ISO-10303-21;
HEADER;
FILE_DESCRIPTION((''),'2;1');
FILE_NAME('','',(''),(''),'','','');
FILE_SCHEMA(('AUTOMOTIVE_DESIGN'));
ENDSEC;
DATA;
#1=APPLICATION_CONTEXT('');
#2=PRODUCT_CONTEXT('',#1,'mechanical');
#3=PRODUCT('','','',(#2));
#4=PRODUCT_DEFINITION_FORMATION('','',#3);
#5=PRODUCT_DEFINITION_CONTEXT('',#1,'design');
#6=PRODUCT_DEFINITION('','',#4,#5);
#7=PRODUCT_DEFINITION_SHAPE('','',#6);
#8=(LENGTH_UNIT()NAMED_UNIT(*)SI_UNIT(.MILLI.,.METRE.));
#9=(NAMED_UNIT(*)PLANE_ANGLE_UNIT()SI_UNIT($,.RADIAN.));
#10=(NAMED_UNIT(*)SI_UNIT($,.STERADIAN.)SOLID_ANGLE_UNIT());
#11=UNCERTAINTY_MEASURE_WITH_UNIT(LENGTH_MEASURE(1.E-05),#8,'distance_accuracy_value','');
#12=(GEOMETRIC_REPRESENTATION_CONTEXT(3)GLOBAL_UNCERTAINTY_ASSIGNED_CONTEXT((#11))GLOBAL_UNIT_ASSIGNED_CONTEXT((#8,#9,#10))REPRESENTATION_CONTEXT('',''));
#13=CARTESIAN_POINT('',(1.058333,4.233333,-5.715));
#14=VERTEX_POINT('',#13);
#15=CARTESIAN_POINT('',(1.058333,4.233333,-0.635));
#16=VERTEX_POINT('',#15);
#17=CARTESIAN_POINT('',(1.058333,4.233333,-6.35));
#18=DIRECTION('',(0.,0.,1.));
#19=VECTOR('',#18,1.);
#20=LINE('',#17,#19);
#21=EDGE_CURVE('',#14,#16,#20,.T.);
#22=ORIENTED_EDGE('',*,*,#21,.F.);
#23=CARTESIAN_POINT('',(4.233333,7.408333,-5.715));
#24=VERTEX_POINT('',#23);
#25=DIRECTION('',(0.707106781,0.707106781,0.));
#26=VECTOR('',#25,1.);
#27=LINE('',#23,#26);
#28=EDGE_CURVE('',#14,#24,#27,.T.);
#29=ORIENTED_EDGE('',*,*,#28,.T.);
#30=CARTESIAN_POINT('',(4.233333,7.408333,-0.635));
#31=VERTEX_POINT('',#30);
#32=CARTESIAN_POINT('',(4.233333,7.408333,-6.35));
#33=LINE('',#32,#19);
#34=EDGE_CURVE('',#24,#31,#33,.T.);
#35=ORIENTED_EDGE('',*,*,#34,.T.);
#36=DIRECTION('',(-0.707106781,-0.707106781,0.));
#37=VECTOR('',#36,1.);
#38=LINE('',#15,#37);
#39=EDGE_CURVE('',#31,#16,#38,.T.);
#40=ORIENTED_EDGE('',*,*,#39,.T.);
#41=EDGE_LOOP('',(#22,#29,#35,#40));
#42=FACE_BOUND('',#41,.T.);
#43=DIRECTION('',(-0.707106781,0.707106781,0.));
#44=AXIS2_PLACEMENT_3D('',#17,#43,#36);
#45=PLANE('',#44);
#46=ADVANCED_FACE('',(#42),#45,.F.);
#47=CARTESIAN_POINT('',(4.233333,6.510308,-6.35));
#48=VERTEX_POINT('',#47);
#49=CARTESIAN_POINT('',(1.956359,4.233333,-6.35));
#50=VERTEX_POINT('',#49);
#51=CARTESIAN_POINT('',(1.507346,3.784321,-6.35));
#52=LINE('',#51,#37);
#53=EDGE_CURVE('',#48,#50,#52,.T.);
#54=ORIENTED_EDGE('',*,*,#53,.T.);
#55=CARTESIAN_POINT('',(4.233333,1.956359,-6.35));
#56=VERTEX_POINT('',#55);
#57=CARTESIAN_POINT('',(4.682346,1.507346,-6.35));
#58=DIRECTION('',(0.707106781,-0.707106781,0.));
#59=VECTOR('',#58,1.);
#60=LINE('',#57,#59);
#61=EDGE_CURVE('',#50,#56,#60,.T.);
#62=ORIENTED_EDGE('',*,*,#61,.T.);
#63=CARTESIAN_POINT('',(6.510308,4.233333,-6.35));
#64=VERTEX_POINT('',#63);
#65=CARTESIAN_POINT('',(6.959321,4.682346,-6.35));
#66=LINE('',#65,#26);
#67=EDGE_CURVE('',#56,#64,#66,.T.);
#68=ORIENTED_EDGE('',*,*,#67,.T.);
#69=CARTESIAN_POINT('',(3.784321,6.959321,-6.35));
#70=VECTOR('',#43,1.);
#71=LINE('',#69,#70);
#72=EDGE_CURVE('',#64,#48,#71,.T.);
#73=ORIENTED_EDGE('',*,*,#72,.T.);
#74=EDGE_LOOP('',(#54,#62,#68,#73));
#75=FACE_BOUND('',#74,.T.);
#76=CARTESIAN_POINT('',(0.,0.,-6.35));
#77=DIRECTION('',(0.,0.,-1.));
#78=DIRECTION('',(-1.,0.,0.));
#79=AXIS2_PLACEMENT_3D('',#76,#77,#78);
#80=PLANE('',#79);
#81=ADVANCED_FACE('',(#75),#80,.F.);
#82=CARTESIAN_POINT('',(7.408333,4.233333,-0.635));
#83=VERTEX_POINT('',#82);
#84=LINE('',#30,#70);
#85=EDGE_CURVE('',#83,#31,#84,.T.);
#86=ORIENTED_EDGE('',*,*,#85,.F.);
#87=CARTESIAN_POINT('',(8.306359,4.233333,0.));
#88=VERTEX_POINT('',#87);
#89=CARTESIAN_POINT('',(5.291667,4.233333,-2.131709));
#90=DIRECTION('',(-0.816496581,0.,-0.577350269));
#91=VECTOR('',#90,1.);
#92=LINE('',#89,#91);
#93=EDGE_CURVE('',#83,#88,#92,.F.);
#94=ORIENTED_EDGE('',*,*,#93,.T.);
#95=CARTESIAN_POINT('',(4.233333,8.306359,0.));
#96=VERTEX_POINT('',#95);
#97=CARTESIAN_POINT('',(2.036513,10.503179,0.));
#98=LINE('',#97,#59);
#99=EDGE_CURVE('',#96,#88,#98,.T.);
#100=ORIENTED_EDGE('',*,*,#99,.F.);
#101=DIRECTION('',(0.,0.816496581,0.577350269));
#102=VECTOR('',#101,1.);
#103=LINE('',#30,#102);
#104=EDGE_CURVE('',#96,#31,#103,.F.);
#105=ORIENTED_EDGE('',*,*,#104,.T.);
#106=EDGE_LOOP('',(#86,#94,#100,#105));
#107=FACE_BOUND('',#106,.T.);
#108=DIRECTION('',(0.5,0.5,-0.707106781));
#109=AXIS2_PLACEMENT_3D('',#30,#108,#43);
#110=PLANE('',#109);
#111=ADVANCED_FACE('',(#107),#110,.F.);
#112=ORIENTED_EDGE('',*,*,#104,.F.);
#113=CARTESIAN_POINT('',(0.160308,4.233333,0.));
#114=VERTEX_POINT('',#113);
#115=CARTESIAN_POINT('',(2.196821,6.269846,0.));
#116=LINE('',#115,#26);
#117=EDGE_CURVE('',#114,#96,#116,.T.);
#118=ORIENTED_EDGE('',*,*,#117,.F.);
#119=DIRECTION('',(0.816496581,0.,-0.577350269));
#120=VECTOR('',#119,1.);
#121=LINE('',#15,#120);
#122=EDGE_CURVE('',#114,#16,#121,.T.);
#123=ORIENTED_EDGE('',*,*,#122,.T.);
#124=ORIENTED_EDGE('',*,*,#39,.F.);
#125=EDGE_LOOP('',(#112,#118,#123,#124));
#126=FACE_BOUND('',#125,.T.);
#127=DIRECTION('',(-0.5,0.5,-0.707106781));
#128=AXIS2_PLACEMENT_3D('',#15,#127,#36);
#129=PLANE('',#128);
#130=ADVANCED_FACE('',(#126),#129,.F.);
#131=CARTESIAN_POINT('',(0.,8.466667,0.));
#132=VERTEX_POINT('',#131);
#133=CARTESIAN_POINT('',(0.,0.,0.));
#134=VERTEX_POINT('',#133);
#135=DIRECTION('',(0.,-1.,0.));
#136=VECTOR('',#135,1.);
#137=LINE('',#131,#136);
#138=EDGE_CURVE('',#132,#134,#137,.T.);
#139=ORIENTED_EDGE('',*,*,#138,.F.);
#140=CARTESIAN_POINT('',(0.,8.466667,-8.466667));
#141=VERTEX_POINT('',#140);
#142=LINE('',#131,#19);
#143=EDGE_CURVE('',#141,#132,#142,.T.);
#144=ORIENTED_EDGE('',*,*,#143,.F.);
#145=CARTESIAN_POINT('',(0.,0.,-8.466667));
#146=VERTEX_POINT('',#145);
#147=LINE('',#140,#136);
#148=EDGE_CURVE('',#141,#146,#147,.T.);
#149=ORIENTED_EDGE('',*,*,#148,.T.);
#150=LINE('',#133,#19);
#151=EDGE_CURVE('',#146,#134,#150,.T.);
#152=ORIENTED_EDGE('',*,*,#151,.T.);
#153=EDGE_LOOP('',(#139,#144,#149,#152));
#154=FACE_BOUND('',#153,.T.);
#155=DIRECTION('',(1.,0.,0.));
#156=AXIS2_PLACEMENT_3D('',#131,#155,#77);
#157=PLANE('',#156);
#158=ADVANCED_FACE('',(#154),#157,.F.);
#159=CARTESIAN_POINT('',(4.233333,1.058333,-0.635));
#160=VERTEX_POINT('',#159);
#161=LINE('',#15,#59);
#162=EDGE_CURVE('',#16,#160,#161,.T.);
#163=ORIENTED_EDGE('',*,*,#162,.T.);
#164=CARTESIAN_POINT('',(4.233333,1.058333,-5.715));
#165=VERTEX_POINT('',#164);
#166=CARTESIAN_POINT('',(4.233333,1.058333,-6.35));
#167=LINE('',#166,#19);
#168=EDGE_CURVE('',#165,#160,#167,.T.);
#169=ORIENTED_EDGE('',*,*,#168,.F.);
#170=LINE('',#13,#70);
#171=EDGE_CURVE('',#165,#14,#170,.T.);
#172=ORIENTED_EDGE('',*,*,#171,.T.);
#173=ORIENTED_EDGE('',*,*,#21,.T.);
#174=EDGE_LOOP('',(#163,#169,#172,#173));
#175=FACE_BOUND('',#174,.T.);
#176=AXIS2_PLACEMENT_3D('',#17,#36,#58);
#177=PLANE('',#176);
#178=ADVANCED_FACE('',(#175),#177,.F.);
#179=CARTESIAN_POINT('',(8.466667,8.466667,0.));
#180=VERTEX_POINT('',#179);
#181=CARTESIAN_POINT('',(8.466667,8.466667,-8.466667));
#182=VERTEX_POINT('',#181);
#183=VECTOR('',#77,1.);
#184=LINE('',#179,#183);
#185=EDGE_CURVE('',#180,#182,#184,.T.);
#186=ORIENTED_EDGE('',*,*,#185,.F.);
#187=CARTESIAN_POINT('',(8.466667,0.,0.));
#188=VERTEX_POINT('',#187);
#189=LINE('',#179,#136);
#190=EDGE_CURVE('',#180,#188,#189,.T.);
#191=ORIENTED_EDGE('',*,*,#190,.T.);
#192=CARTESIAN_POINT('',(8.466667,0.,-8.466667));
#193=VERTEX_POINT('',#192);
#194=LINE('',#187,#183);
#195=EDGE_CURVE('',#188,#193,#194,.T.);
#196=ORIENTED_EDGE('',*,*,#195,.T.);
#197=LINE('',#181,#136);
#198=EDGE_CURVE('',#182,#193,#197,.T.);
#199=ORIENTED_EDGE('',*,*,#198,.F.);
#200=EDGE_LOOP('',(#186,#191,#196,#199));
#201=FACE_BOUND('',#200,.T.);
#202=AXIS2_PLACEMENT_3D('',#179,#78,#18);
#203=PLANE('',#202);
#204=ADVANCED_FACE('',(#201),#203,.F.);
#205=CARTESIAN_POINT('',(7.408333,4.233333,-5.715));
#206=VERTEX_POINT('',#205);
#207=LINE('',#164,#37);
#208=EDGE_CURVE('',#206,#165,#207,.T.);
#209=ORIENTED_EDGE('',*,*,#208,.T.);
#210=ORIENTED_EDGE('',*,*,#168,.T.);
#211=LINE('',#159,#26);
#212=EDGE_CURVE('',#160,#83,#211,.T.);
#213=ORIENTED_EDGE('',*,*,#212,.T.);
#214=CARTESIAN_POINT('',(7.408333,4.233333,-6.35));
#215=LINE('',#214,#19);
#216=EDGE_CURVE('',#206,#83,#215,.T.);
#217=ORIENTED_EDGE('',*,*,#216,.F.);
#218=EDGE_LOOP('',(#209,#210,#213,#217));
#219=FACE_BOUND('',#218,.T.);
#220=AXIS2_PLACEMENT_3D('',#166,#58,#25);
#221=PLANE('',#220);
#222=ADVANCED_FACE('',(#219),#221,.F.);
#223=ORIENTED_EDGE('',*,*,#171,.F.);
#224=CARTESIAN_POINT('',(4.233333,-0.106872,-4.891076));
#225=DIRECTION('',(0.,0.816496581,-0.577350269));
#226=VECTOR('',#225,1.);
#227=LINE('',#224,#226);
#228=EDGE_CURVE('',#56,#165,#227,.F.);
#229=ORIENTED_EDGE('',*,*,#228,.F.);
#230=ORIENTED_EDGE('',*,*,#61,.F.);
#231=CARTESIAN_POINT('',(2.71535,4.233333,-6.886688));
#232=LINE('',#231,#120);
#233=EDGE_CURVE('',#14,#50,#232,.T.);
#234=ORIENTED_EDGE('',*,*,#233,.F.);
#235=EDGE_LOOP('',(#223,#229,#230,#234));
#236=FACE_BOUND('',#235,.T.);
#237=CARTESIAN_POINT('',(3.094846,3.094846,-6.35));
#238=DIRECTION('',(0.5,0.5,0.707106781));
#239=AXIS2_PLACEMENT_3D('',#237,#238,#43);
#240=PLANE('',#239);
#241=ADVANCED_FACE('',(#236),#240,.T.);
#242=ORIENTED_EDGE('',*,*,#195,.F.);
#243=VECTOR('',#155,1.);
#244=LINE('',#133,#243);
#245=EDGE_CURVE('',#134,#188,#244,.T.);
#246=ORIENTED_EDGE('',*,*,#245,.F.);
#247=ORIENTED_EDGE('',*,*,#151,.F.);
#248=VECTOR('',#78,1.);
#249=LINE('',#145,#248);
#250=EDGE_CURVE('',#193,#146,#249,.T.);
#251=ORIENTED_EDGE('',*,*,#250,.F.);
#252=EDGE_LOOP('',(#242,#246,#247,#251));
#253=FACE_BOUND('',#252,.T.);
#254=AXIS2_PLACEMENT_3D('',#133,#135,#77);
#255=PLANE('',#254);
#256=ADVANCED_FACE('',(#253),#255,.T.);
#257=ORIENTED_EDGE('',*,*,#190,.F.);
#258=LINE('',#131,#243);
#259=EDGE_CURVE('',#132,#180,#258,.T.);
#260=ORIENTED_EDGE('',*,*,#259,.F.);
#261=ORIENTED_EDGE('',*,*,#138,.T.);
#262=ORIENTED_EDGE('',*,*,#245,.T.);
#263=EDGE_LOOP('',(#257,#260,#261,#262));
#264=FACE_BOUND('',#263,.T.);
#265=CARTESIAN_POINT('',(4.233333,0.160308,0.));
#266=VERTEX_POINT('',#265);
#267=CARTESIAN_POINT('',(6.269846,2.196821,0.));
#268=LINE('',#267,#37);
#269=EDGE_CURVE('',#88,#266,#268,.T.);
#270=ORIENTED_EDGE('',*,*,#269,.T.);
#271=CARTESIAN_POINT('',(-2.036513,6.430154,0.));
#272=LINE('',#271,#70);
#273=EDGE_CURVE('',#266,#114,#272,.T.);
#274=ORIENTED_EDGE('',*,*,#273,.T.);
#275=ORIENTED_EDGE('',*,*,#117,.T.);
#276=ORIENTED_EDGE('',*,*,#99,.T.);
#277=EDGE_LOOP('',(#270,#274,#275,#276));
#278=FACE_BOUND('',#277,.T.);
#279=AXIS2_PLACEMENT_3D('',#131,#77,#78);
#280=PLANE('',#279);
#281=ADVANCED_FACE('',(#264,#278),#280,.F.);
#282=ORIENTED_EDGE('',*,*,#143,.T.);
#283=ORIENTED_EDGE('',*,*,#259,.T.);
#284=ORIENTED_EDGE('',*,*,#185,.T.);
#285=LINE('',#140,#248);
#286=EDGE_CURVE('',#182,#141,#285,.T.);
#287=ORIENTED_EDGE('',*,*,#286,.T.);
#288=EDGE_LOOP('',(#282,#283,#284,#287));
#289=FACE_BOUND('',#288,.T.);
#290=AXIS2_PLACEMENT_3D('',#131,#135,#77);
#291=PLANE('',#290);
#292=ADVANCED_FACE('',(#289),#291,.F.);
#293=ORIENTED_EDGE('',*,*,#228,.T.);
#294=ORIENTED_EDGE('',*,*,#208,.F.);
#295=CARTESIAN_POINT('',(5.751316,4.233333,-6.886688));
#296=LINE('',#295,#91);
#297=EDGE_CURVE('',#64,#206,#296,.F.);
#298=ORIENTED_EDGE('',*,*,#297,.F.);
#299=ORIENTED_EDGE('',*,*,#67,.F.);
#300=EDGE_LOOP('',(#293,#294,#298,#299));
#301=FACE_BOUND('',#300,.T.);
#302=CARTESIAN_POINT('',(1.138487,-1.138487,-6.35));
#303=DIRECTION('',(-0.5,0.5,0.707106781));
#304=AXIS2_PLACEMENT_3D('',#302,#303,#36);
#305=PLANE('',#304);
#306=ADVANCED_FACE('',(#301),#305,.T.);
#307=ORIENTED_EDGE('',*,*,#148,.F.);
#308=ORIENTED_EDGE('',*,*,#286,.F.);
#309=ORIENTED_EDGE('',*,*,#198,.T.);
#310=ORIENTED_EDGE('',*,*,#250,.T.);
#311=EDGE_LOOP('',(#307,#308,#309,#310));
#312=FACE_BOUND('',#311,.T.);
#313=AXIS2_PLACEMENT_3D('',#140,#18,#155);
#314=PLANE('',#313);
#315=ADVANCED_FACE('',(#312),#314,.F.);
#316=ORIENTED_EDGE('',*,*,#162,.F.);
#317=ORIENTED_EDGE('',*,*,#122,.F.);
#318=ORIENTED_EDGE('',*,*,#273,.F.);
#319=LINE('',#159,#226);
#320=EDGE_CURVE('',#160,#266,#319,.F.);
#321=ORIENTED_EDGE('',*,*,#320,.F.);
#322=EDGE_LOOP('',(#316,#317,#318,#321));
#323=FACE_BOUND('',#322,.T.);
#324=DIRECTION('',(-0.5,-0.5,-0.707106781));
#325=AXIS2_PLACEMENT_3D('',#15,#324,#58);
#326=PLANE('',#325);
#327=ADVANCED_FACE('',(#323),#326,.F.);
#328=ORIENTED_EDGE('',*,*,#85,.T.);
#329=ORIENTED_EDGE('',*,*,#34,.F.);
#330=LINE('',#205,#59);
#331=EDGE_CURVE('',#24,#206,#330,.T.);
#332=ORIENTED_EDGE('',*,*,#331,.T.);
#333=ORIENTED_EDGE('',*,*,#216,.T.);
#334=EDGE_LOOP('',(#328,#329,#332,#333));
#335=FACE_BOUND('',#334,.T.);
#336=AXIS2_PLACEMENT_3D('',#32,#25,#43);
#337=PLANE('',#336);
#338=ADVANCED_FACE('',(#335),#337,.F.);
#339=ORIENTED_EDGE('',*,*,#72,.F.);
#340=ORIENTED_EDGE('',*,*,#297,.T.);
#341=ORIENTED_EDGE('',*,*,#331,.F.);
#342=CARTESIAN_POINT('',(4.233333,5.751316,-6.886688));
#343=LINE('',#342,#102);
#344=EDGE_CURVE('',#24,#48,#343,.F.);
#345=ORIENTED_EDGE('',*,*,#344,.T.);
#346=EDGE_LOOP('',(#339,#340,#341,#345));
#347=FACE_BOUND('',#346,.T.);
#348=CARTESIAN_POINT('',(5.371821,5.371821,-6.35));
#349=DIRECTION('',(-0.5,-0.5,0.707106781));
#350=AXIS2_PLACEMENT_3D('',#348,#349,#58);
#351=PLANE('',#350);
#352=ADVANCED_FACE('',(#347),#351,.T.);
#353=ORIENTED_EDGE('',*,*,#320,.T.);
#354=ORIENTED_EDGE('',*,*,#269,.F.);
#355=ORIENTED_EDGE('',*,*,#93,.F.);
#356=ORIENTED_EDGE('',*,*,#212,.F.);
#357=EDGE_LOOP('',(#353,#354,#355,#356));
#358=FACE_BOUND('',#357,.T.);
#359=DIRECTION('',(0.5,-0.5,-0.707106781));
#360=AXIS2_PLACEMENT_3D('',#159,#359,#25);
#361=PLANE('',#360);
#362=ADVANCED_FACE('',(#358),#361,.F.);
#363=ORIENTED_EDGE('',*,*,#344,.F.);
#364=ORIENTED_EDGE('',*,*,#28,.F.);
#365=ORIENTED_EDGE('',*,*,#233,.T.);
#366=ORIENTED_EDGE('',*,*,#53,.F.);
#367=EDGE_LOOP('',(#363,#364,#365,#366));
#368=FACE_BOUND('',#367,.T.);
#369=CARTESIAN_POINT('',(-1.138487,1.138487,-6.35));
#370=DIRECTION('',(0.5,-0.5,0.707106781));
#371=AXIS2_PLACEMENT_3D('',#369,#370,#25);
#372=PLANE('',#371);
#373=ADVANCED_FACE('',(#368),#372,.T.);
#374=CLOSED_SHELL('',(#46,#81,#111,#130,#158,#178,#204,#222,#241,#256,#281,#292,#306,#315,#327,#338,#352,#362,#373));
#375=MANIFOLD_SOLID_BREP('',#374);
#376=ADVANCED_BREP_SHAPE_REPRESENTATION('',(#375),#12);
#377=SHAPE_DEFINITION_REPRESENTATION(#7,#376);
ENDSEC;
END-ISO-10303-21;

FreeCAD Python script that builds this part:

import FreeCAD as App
import Part
import Sketcher
from FreeCAD import Vector
Q = App.Units.Quantity


def edges_at(feature, points):
    """Names of the edges that pass closest to the given points."""
    edges = feature.Shape.Edges
    near = lambda p: min(range(len(edges)), key=lambda i: edges[i].distToShape(Part.Vertex(*p))[0])
    return sorted({f"Edge{near(p) + 1}" for p in points})


def add_polygon(sketch, points):
    """Adds a closed chain of lines whose ends are joined by coincident constraints."""
    first, n = sketch.GeometryCount, len(points)
    for a, b in zip(points, points[1:] + points[:1]):
        sketch.addGeometry(Part.LineSegment(App.Vector(*a, 0), App.Vector(*b, 0)), False)
    for i in range(n):
        sketch.addConstraint(Sketcher.Constraint("Coincident", first + i, 2, first + (i + 1) % n, 1))

doc = App.newDocument("Part")
body = doc.addObject("PartDesign::Body", "Body")

# Sketch on XZ plane
sketch1 = doc.addObject("Sketcher::SketchObject", "Sketch")
body.addObject(sketch1)
sketch1.AttachmentSupport = (doc.XZ_Plane, [""])
sketch1.MapMode = "FlatFace"
add_polygon(sketch1, [(0, -8.466667), (0, 0), (8.466667, 0), (8.466667, -8.466667)])  # lines 0-3
sketch1.addConstraint(Sketcher.Constraint("Vertical", 0))
sketch1.addConstraint(Sketcher.Constraint("Horizontal", 1))
sketch1.addConstraint(Sketcher.Constraint("Vertical", 2))
sketch1.addConstraint(Sketcher.Constraint("Horizontal", 3))
sketch1.addConstraint(Sketcher.Constraint("Coincident", 0, 2, -1, 1))
sketch1.addConstraint(Sketcher.Constraint("Equal", 3, 0))
sketch1.addConstraint(Sketcher.Constraint("DistanceX", 1, 1, 1, 2, 8.466667))
pad1 = doc.addObject("PartDesign::Pad", "Pad")
body.addObject(pad1)
pad1.Profile = sketch1
pad1.Length = 8.466667
pad1.Reversed = True

# Sketch on XY plane
sketch2 = doc.addObject("Sketcher::SketchObject", "Sketch001")
body.addObject(sketch2)
sketch2.AttachmentSupport = (doc.XY_Plane, [""])
sketch2.MapMode = "FlatFace"
add_polygon(sketch2, [(1.058333, 4.233333), (4.233333, 1.058333), (7.408333, 4.233333), (4.233333, 7.408333)])  # lines 0-3
sketch2.addConstraint(Sketcher.Constraint("Perpendicular", 0, 1))
sketch2.addConstraint(Sketcher.Constraint("Perpendicular", 1, 2))
sketch2.addConstraint(Sketcher.Constraint("Perpendicular", 2, 3))
sketch2.addConstraint(Sketcher.Constraint("Horizontal", 1, 2, 3, 2))
sketch2.addConstraint(Sketcher.Constraint("Vertical", 0, 2, 2, 2))
sketch2.addConstraint(Sketcher.Constraint("DistanceY", 0, 2, 2, 2, Q("0.25 in")))
sketch2.addConstraint(Sketcher.Constraint("DistanceX", -1, 1, 0, 2, 4.233333))
sketch2.addConstraint(Sketcher.Constraint("DistanceY", -1, 1, 0, 2, 1.058333))
pocket1 = doc.addObject("PartDesign::Pocket", "Pocket")
body.addObject(pocket1)
pocket1.Profile = sketch2
pocket1.Length = Q("0.25 in")
doc.recompute()

chamfer = doc.addObject("PartDesign::Chamfer", "Chamfer")
body.addObject(chamfer)
chamfer.Base = (pocket1, edges_at(pocket1, [
    (2.646, 5.821, -6.35),
    (5.821, 5.821, -6.35),
    (5.821, 2.646, -6.35),
    (2.646, 2.646, -6.35),
    (2.646, 5.821, 0),
    (2.646, 2.646, 0),
    (5.821, 2.646, 0),
    (5.821, 5.821, 0),
]))
chamfer.Size = Q("0.025 in")

doc.recompute()
